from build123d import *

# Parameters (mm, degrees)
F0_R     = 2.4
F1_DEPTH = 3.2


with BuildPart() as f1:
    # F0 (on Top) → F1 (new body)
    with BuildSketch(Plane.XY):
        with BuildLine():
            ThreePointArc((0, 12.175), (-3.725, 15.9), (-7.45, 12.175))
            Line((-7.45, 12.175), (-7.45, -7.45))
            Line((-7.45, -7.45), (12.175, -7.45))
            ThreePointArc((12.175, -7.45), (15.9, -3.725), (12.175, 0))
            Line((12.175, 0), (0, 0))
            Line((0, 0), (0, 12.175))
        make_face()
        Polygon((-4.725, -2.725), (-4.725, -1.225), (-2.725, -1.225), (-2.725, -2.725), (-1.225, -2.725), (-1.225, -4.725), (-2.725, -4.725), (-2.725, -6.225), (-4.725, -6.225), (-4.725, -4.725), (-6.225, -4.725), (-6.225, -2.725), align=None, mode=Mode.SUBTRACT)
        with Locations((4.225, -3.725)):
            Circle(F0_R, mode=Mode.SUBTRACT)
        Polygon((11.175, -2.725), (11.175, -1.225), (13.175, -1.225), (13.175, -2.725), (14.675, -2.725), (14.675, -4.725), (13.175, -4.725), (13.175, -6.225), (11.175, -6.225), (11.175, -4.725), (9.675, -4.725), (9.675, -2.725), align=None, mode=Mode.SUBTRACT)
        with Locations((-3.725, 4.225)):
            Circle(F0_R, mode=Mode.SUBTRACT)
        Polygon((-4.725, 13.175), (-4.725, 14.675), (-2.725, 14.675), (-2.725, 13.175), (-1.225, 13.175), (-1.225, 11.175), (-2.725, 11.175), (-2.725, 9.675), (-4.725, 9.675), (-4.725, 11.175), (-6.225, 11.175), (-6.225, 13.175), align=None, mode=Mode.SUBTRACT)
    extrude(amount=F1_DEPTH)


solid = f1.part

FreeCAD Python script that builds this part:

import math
import FreeCAD as App
import Part
import Sketcher

V = App.Vector
Q = App.Units.Quantity

doc = App.newDocument("Part")
params = doc.addObject("Spreadsheet::Sheet", "Params")
for row, (alias, value) in enumerate([
    ("sketch1_diameter", "4.8 mm"),
    ("sketch1_width", "2 mm"),
    ("sketch1_width2", "1.5 mm"),
    ("pad1_length", "3.2 mm"),
], start=1):
    params.set(f"A{row}", alias)
    params.set(f"B{row}", "=" + value)
    params.setAlias(f"B{row}", alias)

body = doc.addObject("PartDesign::Body", "Body")

sketch1 = body.newObject("Sketcher::SketchObject", "Sketch")
sketch1.AttachmentSupport = (doc.getObject("XY_Plane"), [""])
sketch1.MapMode = "FlatFace"
sketch1.addGeometry([
    Part.ArcOfCircle(Part.Circle(V(-3.725, 12.175, 0), V(0, 0, 1), 3.725), math.radians(0), math.radians(180)),
    Part.LineSegment(V(-7.45, 12.175, 0), V(-7.45, -7.45, 0)),
    Part.LineSegment(V(-7.45, -7.45, 0), V(12.175, -7.45, 0)),
    Part.ArcOfCircle(Part.Circle(V(12.175, -3.725, 0), V(0, 0, 1), 3.725), math.radians(-90), math.radians(90)),
    Part.LineSegment(V(12.175, 0, 0), V(0, 0, 0)),
    Part.LineSegment(V(0, 0, 0), V(0, 12.175, 0)),
    Part.LineSegment(V(-6.225, -2.725, 0), V(-4.725, -2.725, 0)),
    Part.LineSegment(V(-4.725, -2.725, 0), V(-4.725, -1.225, 0)),
    Part.LineSegment(V(-4.725, -1.225, 0), V(-2.725, -1.225, 0)),
    Part.LineSegment(V(-2.725, -1.225, 0), V(-2.725, -2.725, 0)),
    Part.LineSegment(V(-2.725, -2.725, 0), V(-1.225, -2.725, 0)),
    Part.LineSegment(V(-1.225, -2.725, 0), V(-1.225, -4.725, 0)),
    Part.LineSegment(V(-1.225, -4.725, 0), V(-2.725, -4.725, 0)),
    Part.LineSegment(V(-2.725, -4.725, 0), V(-2.725, -6.225, 0)),
    Part.LineSegment(V(-2.725, -6.225, 0), V(-4.725, -6.225, 0)),
    Part.LineSegment(V(-4.725, -6.225, 0), V(-4.725, -4.725, 0)),
    Part.LineSegment(V(-4.725, -4.725, 0), V(-6.225, -4.725, 0)),
    Part.LineSegment(V(-6.225, -4.725, 0), V(-6.225, -2.725, 0)),
    Part.Circle(V(4.225, -3.725, 0), V(0, 0, 1), 2.4),
    Part.Circle(V(-3.725, 4.225, 0), V(0, 0, 1), 2.4),
    Part.LineSegment(V(9.675, -2.725, 0), V(11.175, -2.725, 0)),
    Part.LineSegment(V(11.175, -2.725, 0), V(11.175, -1.225, 0)),
    Part.LineSegment(V(11.175, -1.225, 0), V(13.175, -1.225, 0)),
    Part.LineSegment(V(13.175, -1.225, 0), V(13.175, -2.725, 0)),
    Part.LineSegment(V(13.175, -2.725, 0), V(14.675, -2.725, 0)),
    Part.LineSegment(V(14.675, -2.725, 0), V(14.675, -4.725, 0)),
    Part.LineSegment(V(14.675, -4.725, 0), V(13.175, -4.725, 0)),
    Part.LineSegment(V(13.175, -4.725, 0), V(13.175, -6.225, 0)),
    Part.LineSegment(V(13.175, -6.225, 0), V(11.175, -6.225, 0)),
    Part.LineSegment(V(11.175, -6.225, 0), V(11.175, -4.725, 0)),
    Part.LineSegment(V(11.175, -4.725, 0), V(9.675, -4.725, 0)),
    Part.LineSegment(V(9.675, -4.725, 0), V(9.675, -2.725, 0)),
    Part.LineSegment(V(-6.225, 13.175, 0), V(-4.725, 13.175, 0)),
    Part.LineSegment(V(-4.725, 13.175, 0), V(-4.725, 14.675, 0)),
    Part.LineSegment(V(-4.725, 14.675, 0), V(-2.725, 14.675, 0)),
    Part.LineSegment(V(-2.725, 14.675, 0), V(-2.725, 13.175, 0)),
    Part.LineSegment(V(-2.725, 13.175, 0), V(-1.225, 13.175, 0)),
    Part.LineSegment(V(-1.225, 13.175, 0), V(-1.225, 11.175, 0)),
    Part.LineSegment(V(-1.225, 11.175, 0), V(-2.725, 11.175, 0)),
    Part.LineSegment(V(-2.725, 11.175, 0), V(-2.725, 9.675, 0)),
    Part.LineSegment(V(-2.725, 9.675, 0), V(-4.725, 9.675, 0)),
    Part.LineSegment(V(-4.725, 9.675, 0), V(-4.725, 11.175, 0)),
    Part.LineSegment(V(-4.725, 11.175, 0), V(-6.225, 11.175, 0)),
    Part.LineSegment(V(-6.225, 11.175, 0), V(-6.225, 13.175, 0)),
], False)
sketch1.addConstraint([
    Sketcher.Constraint("Tangent", 0, 2, 1, 1),
    Sketcher.Constraint("Coincident", 1, 2, 2, 1),
    Sketcher.Constraint("Tangent", 2, 2, 3, 1),
    Sketcher.Constraint("Tangent", 3, 2, 4, 1),
    Sketcher.Constraint("Coincident", 4, 2, 5, 1),
    Sketcher.Constraint("Tangent", 5, 2, 0, 1),
    Sketcher.Constraint("Coincident", 6, 2, 7, 1),
    Sketcher.Constraint("Coincident", 7, 2, 8, 1),
    Sketcher.Constraint("Coincident", 8, 2, 9, 1),
    Sketcher.Constraint("Coincident", 9, 2, 10, 1),
    Sketcher.Constraint("Coincident", 10, 2, 11, 1),
    Sketcher.Constraint("Coincident", 11, 2, 12, 1),
    Sketcher.Constraint("Coincident", 12, 2, 13, 1),
    Sketcher.Constraint("Coincident", 13, 2, 14, 1),
    Sketcher.Constraint("Coincident", 14, 2, 15, 1),
    Sketcher.Constraint("Coincident", 15, 2, 16, 1),
    Sketcher.Constraint("Coincident", 16, 2, 17, 1),
    Sketcher.Constraint("Coincident", 17, 2, 6, 1),
    Sketcher.Constraint("Coincident", 20, 2, 21, 1),
    Sketcher.Constraint("Coincident", 21, 2, 22, 1),
    Sketcher.Constraint("Coincident", 22, 2, 23, 1),
    Sketcher.Constraint("Coincident", 23, 2, 24, 1),
    Sketcher.Constraint("Coincident", 24, 2, 25, 1),
    Sketcher.Constraint("Coincident", 25, 2, 26, 1),
    Sketcher.Constraint("Coincident", 26, 2, 27, 1),
    Sketcher.Constraint("Coincident", 27, 2, 28, 1),
    Sketcher.Constraint("Coincident", 28, 2, 29, 1),
    Sketcher.Constraint("Coincident", 29, 2, 30, 1),
    Sketcher.Constraint("Coincident", 30, 2, 31, 1),
    Sketcher.Constraint("Coincident", 31, 2, 20, 1),
    Sketcher.Constraint("Coincident", 32, 2, 33, 1),
    Sketcher.Constraint("Coincident", 33, 2, 34, 1),
    Sketcher.Constraint("Coincident", 34, 2, 35, 1),
    Sketcher.Constraint("Coincident", 35, 2, 36, 1),
    Sketcher.Constraint("Coincident", 36, 2, 37, 1),
    Sketcher.Constraint("Coincident", 37, 2, 38, 1),
    Sketcher.Constraint("Coincident", 38, 2, 39, 1),
    Sketcher.Constraint("Coincident", 39, 2, 40, 1),
    Sketcher.Constraint("Coincident", 40, 2, 41, 1),
    Sketcher.Constraint("Coincident", 41, 2, 42, 1),
    Sketcher.Constraint("Coincident", 42, 2, 43, 1),
    Sketcher.Constraint("Coincident", 43, 2, 32, 1),
    Sketcher.Constraint("Vertical", 1),
    Sketcher.Constraint("Horizontal", 2),
    Sketcher.Constraint("Horizontal", 4),
    Sketcher.Constraint("Vertical", 5),
    Sketcher.Constraint("Horizontal", 6),
    Sketcher.Constraint("Vertical", 7),
    Sketcher.Constraint("Horizontal", 8),
    Sketcher.Constraint("Vertical", 9),
    Sketcher.Constraint("Horizontal", 10),
    Sketcher.Constraint("Vertical", 11),
    Sketcher.Constraint("Horizontal", 12),
    Sketcher.Constraint("Vertical", 13),
    Sketcher.Constraint("Horizontal", 14),
    Sketcher.Constraint("Vertical", 15),
    Sketcher.Constraint("Horizontal", 16),
    Sketcher.Constraint("Vertical", 17),
    Sketcher.Constraint("Horizontal", 20),
    Sketcher.Constraint("Vertical", 21),
    Sketcher.Constraint("Horizontal", 22),
    Sketcher.Constraint("Vertical", 23),
    Sketcher.Constraint("Horizontal", 24),
    Sketcher.Constraint("Vertical", 25),
    Sketcher.Constraint("Horizontal", 26),
    Sketcher.Constraint("Vertical", 27),
    Sketcher.Constraint("Horizontal", 28),
    Sketcher.Constraint("Vertical", 29),
    Sketcher.Constraint("Horizontal", 30),
    Sketcher.Constraint("Vertical", 31),
    Sketcher.Constraint("Horizontal", 32),
    Sketcher.Constraint("Vertical", 33),
    Sketcher.Constraint("Horizontal", 34),
    Sketcher.Constraint("Vertical", 35),
    Sketcher.Constraint("Horizontal", 36),
    Sketcher.Constraint("Vertical", 37),
    Sketcher.Constraint("Horizontal", 38),
    Sketcher.Constraint("Vertical", 39),
    Sketcher.Constraint("Horizontal", 40),
    Sketcher.Constraint("Vertical", 41),
    Sketcher.Constraint("Horizontal", 42),
    Sketcher.Constraint("Vertical", 43),
    Sketcher.Constraint("Coincident", 4, 2, -1, 1),
    Sketcher.Constraint("Equal", 0, 3),
    Sketcher.Constraint("Equal", 18, 19),
    Sketcher.Constraint("Horizontal", 3, 3, 18, 3),
    Sketcher.Constraint("Horizontal", 6, 2, 9, 2),
    Sketcher.Constraint("Horizontal", 12, 2, 15, 2),
    Sketcher.Constraint("Horizontal", 17, 2, 20, 2),
    Sketcher.Constraint("Horizontal", 8, 2, 21, 2),
    Sketcher.Constraint("Horizontal", 20, 2, 23, 2),
    Sketcher.Constraint("Horizontal", 16, 2, 25, 2),
    Sketcher.Constraint("Horizontal", 14, 2, 27, 2),
    Sketcher.Constraint("Horizontal", 26, 2, 29, 2),
    Sketcher.Constraint("Horizontal", 32, 2, 35, 2),
    Sketcher.Constraint("Horizontal", 38, 2, 41, 2),
    Sketcher.Constraint("Vertical", 0, 3, 19, 3),
    Sketcher.Constraint("Vertical", 9, 2, 12, 2),
    Sketcher.Constraint("Vertical", 7, 2, 14, 2),
    Sketcher.Constraint("Vertical", 23, 2, 26, 2),
    Sketcher.Constraint("Vertical", 21, 2, 28, 2),
    Sketcher.Constraint("Vertical", 15, 2, 32, 2),
    Sketcher.Constraint("Vertical", 13, 2, 34, 2),
    Sketcher.Constraint("Vertical", 11, 2, 36, 2),
    Sketcher.Constraint("Vertical", 35, 2, 38, 2),
    Sketcher.Constraint("Vertical", 33, 2, 40, 2),
    Sketcher.Constraint("Vertical", 17, 2, 42, 2),
    Sketcher.Constraint("Equal", 6, 10),
    Sketcher.Constraint("Equal", 16, 20),
    Sketcher.Constraint("Equal", 14, 22),
    Sketcher.Constraint("Equal", 20, 24),
    Sketcher.Constraint("Equal", 2, 1),
    Sketcher.Constraint("Equal", 42, 7),
    Sketcher.Constraint("Equal", 40, 11),
    Sketcher.Constraint("Equal", 9, 13),
    Sketcher.Constraint("Equal", 29, 33),
    Sketcher.Constraint("Equal", 31, 37),
    Sketcher.Constraint("Equal", 35, 39),
    Sketcher.Constraint("Diameter", 18, Q("4.8 mm")),
    Sketcher.Constraint("DistanceX", 8, 1, 8, 2, Q("2 mm")),
    Sketcher.Constraint("DistanceX", 6, 1, 6, 2, Q("1.5 mm")),
    Sketcher.Constraint("Radius", 0, Q("3.725 mm")),
    Sketcher.Constraint("DistanceX", 6, 2, 19, 3, Q("1 mm")),
    Sketcher.Constraint("DistanceY", 18, 3, 6, 2, Q("1 mm")),
    Sketcher.Constraint("DistanceX", 20, 2, 3, 3, Q("1 mm")),
    Sketcher.Constraint("DistanceY", 0, 3, 32, 2, Q("1 mm")),
    Sketcher.Constraint("DistanceX", 0, 3, 3, 3, Q("15.9 mm")),
    Sketcher.Constraint("DistanceX", 18, 3, 3, 3, Q("7.95 mm")),
    Sketcher.Constraint("DistanceY", 19, 3, 0, 3, Q("7.95 mm")),
])
sketch1.setExpression("Constraints[118]", "Params.sketch1_diameter")
sketch1.setExpression("Constraints[119]", "Params.sketch1_width")
sketch1.setExpression("Constraints[120]", "Params.sketch1_width2")
pad1 = body.newObject("PartDesign::Pad", "Pad")
pad1.Profile = sketch1
pad1.setExpression("Length", "Params.pad1_length")

doc.recompute()
